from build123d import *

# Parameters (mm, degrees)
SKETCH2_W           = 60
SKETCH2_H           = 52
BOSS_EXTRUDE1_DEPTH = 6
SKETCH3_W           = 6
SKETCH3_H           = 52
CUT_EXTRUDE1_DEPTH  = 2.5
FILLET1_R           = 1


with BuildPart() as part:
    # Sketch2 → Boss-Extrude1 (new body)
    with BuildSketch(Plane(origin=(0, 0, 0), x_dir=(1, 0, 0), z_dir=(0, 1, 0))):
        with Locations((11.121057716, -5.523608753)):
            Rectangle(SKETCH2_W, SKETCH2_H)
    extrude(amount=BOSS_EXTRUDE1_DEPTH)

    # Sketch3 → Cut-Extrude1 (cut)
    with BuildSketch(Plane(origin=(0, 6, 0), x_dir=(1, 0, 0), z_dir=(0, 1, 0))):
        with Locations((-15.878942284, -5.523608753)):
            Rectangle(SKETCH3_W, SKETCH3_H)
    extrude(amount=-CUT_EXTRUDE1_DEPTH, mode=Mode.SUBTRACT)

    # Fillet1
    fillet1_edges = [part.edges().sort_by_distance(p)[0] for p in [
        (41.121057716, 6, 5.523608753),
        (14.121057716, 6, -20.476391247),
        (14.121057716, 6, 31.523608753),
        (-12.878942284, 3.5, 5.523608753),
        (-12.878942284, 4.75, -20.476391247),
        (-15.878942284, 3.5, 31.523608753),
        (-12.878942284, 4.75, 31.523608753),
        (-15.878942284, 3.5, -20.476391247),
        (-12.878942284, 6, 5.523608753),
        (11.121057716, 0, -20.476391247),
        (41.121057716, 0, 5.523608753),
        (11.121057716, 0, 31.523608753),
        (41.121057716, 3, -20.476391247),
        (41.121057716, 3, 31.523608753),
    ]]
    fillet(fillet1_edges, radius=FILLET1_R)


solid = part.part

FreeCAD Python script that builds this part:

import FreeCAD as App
import Part
import Sketcher


def edges_at(feature, points):
    """Names of the edges that pass closest to the given points."""
    edges = feature.Shape.Edges
    near = lambda p: min(range(len(edges)), key=lambda i: edges[i].distToShape(Part.Vertex(*p))[0])
    return sorted({f"Edge{near(p) + 1}" for p in points})

doc = App.newDocument("Part")
body = doc.addObject("PartDesign::Body", "Body")

sketch1 = body.newObject("Sketcher::SketchObject", "Sketch")
sketch1.AttachmentSupport = (doc.getObject("XZ_Plane"), [""])
sketch1.MapMode = "FlatFace"
sketch1.addGeometry([
    Part.LineSegment(App.Vector(-19, -20, 0), App.Vector(-19, 32, 0)),
    Part.LineSegment(App.Vector(-19, 32, 0), App.Vector(41, 32, 0)),
    Part.LineSegment(App.Vector(41, 32, 0), App.Vector(41, -20, 0)),
    Part.LineSegment(App.Vector(41, -20, 0), App.Vector(-19, -20, 0)),
], False)
sketch1.addConstraint([
    Sketcher.Constraint("Coincident", 0, 2, 1, 1),
    Sketcher.Constraint("Coincident", 1, 2, 2, 1),
    Sketcher.Constraint("Coincident", 2, 2, 3, 1),
    Sketcher.Constraint("Coincident", 3, 2, 0, 1),
    Sketcher.Constraint("Vertical", 0),
    Sketcher.Constraint("Horizontal", 1),
    Sketcher.Constraint("Vertical", 2),
    Sketcher.Constraint("Horizontal", 3),
    Sketcher.Constraint("DistanceX", 1, 1, 1, 2, 60.0),
    Sketcher.Constraint("DistanceY", 0, 1, 0, 2, 52.0),
    Sketcher.Constraint("DistanceY", -1, 1, 0, 2, 31.523609),
    Sketcher.Constraint("DistanceX", 0, 2, -1, 1, 18.878942),
])
pad1 = body.newObject("PartDesign::Pad", "Pad")
pad1.Profile = sketch1
pad1.Length = 6
pad1.Reversed = True

sketch2 = body.newObject("Sketcher::SketchObject", "Sketch001")
sketch2.AttachmentSupport = (doc.getObject("XZ_Plane"), [""])
sketch2.MapMode = "FlatFace"
sketch2.AttachmentOffset = App.Placement(App.Vector(0, 0, -6), App.Rotation())
sketch2.addGeometry([
    Part.LineSegment(App.Vector(-19, -20, 0), App.Vector(-19, 32, 0)),
    Part.LineSegment(App.Vector(-19, 32, 0), App.Vector(-13, 32, 0)),
    Part.LineSegment(App.Vector(-13, 32, 0), App.Vector(-13, -20, 0)),
    Part.LineSegment(App.Vector(-13, -20, 0), App.Vector(-19, -20, 0)),
], False)
sketch2.addConstraint([
    Sketcher.Constraint("Coincident", 0, 2, 1, 1),
    Sketcher.Constraint("Coincident", 1, 2, 2, 1),
    Sketcher.Constraint("Coincident", 2, 2, 3, 1),
    Sketcher.Constraint("Coincident", 3, 2, 0, 1),
    Sketcher.Constraint("Vertical", 0),
    Sketcher.Constraint("Horizontal", 1),
    Sketcher.Constraint("Vertical", 2),
    Sketcher.Constraint("Horizontal", 3),
    Sketcher.Constraint("DistanceX", 1, 1, 1, 2, 6.0),
    Sketcher.Constraint("DistanceY", 0, 1, 0, 2, 52.0),
    Sketcher.Constraint("DistanceY", -1, 1, 0, 2, 31.523609),
    Sketcher.Constraint("DistanceX", 0, 2, -1, 1, 18.878942),
])
pocket1 = body.newObject("PartDesign::Pocket", "Pocket")
pocket1.Profile = sketch2
pocket1.Length = 2.5
pocket1.Reversed = True
doc.recompute()

fillet = body.newObject("PartDesign::Fillet", "Fillet")
fillet.Base = (pocket1, edges_at(pocket1, [
    (41.121, 6, 5.524),
    (14.121, 6, -20.476),
    (14.121, 6, 31.524),
    (-12.879, 3.5, 5.524),
    (-12.879, 4.75, -20.476),
    (-15.879, 3.5, 31.524),
    (-12.879, 4.75, 31.524),
    (-15.879, 3.5, -20.476),
    (-12.879, 6, 5.524),
    (11.121, 0, -20.476),
    (41.121, 0, 5.524),
    (11.121, 0, 31.524),
    (41.121, 3, -20.476),
    (41.121, 3, 31.524),
]))
fillet.Radius = 1

doc.recompute()
